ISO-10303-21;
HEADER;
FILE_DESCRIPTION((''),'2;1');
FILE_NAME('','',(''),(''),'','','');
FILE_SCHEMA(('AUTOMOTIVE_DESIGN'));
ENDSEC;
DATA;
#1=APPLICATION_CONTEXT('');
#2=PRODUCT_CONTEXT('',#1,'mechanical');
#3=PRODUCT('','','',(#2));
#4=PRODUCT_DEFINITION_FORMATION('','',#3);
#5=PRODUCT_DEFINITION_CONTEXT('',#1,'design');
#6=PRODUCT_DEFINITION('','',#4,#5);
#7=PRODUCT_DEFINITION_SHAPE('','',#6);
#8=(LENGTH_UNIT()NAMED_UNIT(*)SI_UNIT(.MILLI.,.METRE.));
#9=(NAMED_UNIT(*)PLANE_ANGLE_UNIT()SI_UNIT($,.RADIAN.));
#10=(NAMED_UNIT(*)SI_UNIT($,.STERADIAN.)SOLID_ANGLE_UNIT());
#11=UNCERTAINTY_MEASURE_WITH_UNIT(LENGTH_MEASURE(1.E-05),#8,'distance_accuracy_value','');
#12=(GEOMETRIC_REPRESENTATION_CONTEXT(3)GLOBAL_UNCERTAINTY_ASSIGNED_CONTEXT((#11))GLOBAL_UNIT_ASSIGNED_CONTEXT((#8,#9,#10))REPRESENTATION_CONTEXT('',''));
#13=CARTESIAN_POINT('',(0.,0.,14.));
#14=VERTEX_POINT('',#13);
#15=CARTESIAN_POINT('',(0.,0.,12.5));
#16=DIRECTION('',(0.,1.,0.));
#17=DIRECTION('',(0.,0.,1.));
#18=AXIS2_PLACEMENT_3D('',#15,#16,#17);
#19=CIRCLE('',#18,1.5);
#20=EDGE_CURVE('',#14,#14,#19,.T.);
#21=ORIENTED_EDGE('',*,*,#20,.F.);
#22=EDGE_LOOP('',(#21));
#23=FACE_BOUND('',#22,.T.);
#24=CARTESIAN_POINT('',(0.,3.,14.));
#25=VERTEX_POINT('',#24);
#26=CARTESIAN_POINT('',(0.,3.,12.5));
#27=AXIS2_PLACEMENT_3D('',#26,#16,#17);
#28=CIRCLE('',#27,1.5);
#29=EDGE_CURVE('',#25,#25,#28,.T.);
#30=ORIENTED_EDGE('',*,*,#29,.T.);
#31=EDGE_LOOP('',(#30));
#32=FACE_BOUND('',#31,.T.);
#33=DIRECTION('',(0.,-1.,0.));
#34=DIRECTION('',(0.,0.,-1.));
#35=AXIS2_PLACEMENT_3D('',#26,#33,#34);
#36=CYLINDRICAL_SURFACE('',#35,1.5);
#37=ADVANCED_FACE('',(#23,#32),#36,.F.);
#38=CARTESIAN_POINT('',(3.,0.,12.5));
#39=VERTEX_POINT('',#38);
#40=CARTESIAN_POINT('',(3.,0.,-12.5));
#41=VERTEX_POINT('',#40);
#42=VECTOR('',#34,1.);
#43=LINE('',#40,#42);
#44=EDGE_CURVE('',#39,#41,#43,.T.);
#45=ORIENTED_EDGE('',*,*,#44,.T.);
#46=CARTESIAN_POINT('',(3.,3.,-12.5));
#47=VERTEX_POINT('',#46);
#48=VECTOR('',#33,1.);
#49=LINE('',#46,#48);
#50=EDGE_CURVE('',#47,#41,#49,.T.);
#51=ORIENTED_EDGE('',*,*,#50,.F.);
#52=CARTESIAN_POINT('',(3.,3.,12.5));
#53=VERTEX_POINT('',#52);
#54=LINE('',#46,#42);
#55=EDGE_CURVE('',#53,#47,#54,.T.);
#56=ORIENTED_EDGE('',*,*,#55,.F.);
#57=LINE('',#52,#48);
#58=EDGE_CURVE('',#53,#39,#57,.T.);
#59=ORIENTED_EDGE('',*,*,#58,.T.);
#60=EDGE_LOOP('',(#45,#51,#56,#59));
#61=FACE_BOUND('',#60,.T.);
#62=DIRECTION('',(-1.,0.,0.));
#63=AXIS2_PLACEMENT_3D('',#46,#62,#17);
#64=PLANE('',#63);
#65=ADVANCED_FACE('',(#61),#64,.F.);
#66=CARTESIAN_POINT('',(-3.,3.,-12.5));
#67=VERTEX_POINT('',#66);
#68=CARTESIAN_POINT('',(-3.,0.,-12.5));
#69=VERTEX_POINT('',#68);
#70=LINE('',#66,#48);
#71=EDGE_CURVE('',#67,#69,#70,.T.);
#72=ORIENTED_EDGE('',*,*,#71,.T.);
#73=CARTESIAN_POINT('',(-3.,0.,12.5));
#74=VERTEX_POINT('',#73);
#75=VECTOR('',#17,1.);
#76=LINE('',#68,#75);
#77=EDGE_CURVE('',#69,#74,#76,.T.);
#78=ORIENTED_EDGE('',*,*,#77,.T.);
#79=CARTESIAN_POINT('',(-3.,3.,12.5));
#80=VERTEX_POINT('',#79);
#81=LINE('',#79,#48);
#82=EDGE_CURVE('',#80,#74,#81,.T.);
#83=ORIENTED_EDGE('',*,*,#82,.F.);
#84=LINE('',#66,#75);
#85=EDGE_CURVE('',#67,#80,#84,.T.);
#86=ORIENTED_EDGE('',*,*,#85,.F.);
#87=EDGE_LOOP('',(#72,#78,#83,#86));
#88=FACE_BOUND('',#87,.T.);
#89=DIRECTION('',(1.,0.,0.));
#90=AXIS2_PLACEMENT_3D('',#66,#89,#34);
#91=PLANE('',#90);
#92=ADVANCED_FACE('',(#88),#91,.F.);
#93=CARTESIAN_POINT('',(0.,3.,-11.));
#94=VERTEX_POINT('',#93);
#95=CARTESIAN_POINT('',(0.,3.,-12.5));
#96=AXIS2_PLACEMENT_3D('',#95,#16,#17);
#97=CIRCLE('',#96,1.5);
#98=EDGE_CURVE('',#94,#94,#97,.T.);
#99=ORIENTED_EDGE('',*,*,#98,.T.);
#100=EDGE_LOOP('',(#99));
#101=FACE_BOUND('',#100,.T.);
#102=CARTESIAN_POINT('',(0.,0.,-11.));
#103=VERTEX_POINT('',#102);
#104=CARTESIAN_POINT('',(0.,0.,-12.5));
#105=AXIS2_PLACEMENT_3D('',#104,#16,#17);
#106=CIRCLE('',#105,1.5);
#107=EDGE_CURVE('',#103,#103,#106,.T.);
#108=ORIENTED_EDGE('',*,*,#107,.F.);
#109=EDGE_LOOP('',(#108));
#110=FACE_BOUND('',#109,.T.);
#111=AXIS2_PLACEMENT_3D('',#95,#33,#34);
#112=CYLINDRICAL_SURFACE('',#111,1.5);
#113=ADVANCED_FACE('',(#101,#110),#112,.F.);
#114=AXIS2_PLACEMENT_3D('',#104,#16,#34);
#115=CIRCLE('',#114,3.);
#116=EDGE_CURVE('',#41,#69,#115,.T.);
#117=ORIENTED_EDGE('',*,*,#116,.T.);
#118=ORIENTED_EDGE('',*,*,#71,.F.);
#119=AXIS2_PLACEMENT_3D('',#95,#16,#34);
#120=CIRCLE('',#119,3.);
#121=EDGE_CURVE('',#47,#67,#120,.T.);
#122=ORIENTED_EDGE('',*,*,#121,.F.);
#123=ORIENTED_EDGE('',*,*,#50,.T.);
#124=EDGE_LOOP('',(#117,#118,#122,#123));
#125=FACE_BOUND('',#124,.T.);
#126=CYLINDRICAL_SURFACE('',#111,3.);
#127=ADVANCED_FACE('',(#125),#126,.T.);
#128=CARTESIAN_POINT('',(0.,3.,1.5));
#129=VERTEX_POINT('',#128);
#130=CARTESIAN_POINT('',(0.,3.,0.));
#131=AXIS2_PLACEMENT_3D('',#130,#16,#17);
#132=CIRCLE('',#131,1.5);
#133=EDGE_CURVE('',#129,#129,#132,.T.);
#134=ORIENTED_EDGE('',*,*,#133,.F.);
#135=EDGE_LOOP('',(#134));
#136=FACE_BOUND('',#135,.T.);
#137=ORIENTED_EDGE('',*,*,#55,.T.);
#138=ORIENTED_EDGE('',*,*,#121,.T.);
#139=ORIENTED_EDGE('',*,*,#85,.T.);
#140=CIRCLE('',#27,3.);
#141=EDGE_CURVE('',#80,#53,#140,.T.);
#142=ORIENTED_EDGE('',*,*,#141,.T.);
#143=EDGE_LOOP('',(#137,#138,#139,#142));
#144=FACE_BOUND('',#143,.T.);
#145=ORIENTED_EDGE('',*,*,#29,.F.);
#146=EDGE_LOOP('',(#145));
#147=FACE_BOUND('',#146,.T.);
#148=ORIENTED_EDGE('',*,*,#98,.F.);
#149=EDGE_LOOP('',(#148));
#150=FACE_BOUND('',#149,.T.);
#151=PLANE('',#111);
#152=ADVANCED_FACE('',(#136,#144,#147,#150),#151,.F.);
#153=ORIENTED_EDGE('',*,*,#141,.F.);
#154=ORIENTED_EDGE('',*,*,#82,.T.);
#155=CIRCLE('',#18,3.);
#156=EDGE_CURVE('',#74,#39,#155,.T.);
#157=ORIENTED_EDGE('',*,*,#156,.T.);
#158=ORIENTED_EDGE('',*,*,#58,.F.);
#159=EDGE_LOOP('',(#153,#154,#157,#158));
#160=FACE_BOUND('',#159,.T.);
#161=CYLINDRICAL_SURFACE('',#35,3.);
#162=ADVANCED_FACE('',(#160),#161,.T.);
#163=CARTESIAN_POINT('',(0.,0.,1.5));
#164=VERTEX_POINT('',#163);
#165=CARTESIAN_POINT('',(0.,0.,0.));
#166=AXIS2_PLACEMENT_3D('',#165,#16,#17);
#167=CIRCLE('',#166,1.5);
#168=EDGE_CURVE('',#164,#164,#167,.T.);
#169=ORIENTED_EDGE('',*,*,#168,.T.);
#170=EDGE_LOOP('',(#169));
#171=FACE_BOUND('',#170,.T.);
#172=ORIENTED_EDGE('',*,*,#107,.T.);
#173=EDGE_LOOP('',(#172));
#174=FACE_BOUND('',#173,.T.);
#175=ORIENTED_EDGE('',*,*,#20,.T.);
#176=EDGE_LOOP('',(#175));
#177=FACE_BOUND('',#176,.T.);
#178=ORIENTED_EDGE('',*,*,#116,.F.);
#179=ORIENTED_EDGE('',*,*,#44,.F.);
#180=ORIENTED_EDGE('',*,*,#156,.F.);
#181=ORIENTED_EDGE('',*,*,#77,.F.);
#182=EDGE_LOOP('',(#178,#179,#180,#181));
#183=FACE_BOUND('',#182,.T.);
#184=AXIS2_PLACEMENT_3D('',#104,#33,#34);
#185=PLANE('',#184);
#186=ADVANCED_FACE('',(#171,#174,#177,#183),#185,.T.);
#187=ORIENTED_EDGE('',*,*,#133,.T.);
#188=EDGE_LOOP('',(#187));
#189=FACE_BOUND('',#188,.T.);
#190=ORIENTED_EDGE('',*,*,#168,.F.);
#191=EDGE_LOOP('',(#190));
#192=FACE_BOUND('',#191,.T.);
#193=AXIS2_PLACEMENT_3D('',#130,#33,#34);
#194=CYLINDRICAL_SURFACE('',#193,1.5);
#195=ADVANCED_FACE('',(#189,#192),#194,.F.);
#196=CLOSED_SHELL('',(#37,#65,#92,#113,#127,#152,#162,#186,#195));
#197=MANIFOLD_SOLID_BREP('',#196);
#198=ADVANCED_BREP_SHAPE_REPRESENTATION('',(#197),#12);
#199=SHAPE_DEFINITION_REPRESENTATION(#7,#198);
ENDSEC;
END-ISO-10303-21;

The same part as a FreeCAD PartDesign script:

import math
import FreeCAD as App
import Part
import Sketcher
from FreeCAD import Vector
Q = App.Units.Quantity

doc = App.newDocument("Part")
params = doc.addObject("Spreadsheet::Sheet", "Params")
for row, (alias, value) in enumerate([
    ("sketch1_diameter", "3 mm"),
    ("sketch1_radius", "3 mm"),
    ("sketch1_height", "25 mm"),
    ("pad1_length", "3 mm"),
], start=1):
    params.set(f"A{row}", alias)
    params.set(f"B{row}", "=" + value)
    params.setAlias(f"B{row}", alias)

body = doc.addObject("PartDesign::Body", "Body")

sketch1 = body.newObject("Sketcher::SketchObject", "Sketch")
sketch1.AttachmentSupport = (doc.getObject("XZ_Plane"), [""])
sketch1.MapMode = "FlatFace"
sketch1.addGeometry(Part.LineSegment(Vector(-3, -12.5, 0), Vector(-3, 12.5, 0)), False)
sketch1.addGeometry(Part.ArcOfCircle(Part.Circle(Vector(0, 12.5, 0), Vector(0, 0, 1), 3), math.radians(0), math.radians(180)), False)
sketch1.addGeometry(Part.LineSegment(Vector(3, 12.5, 0), Vector(3, -12.5, 0)), False)
sketch1.addGeometry(Part.ArcOfCircle(Part.Circle(Vector(0, -12.5, 0), Vector(0, 0, 1), 3), math.radians(180), math.radians(360)), False)
sketch1.addGeometry(Part.Circle(Vector(0, 12.5, 0), Vector(0, 0, 1), 1.5), False)
sketch1.addGeometry(Part.Circle(Vector(0, 0, 0), Vector(0, 0, 1), 1.5), False)
sketch1.addGeometry(Part.Circle(Vector(0, -12.5, 0), Vector(0, 0, 1), 1.5), False)
sketch1.addConstraint(Sketcher.Constraint("Tangent", 0, 2, 1, 2))
sketch1.addConstraint(Sketcher.Constraint("Tangent", 1, 1, 2, 1))
sketch1.addConstraint(Sketcher.Constraint("Tangent", 2, 2, 3, 2))
sketch1.addConstraint(Sketcher.Constraint("Tangent", 3, 1, 0, 1))
sketch1.addConstraint(Sketcher.Constraint("Vertical", 0))
sketch1.addConstraint(Sketcher.Constraint("Vertical", 2))
sketch1.addConstraint(Sketcher.Constraint("Coincident", 5, 3, -1, 1))
sketch1.addConstraint(Sketcher.Constraint("Coincident", 4, 3, 1, 3))
sketch1.addConstraint(Sketcher.Constraint("Coincident", 6, 3, 3, 3))
sketch1.addConstraint(Sketcher.Constraint("Equal", 4, 5))
sketch1.addConstraint(Sketcher.Constraint("Equal", 5, 6))
sketch1.addConstraint(Sketcher.Constraint("Symmetric", 1, 3, 3, 3, -1, 1))
sketch1.addConstraint(Sketcher.Constraint("Diameter", 4, Q("3 mm")))
sketch1.addConstraint(Sketcher.Constraint("Radius", 1, Q("3 mm")))
sketch1.addConstraint(Sketcher.Constraint("DistanceY", 0, 1, 0, 2, Q("25 mm")))
sketch1.setExpression("Constraints[12]", "Params.sketch1_diameter")
sketch1.setExpression("Constraints[13]", "Params.sketch1_radius")
sketch1.setExpression("Constraints[14]", "Params.sketch1_height")
pad1 = body.newObject("PartDesign::Pad", "Pad")
pad1.Profile = sketch1
pad1.setExpression("Length", "Params.pad1_length")
pad1.Reversed = True

doc.recompute()
